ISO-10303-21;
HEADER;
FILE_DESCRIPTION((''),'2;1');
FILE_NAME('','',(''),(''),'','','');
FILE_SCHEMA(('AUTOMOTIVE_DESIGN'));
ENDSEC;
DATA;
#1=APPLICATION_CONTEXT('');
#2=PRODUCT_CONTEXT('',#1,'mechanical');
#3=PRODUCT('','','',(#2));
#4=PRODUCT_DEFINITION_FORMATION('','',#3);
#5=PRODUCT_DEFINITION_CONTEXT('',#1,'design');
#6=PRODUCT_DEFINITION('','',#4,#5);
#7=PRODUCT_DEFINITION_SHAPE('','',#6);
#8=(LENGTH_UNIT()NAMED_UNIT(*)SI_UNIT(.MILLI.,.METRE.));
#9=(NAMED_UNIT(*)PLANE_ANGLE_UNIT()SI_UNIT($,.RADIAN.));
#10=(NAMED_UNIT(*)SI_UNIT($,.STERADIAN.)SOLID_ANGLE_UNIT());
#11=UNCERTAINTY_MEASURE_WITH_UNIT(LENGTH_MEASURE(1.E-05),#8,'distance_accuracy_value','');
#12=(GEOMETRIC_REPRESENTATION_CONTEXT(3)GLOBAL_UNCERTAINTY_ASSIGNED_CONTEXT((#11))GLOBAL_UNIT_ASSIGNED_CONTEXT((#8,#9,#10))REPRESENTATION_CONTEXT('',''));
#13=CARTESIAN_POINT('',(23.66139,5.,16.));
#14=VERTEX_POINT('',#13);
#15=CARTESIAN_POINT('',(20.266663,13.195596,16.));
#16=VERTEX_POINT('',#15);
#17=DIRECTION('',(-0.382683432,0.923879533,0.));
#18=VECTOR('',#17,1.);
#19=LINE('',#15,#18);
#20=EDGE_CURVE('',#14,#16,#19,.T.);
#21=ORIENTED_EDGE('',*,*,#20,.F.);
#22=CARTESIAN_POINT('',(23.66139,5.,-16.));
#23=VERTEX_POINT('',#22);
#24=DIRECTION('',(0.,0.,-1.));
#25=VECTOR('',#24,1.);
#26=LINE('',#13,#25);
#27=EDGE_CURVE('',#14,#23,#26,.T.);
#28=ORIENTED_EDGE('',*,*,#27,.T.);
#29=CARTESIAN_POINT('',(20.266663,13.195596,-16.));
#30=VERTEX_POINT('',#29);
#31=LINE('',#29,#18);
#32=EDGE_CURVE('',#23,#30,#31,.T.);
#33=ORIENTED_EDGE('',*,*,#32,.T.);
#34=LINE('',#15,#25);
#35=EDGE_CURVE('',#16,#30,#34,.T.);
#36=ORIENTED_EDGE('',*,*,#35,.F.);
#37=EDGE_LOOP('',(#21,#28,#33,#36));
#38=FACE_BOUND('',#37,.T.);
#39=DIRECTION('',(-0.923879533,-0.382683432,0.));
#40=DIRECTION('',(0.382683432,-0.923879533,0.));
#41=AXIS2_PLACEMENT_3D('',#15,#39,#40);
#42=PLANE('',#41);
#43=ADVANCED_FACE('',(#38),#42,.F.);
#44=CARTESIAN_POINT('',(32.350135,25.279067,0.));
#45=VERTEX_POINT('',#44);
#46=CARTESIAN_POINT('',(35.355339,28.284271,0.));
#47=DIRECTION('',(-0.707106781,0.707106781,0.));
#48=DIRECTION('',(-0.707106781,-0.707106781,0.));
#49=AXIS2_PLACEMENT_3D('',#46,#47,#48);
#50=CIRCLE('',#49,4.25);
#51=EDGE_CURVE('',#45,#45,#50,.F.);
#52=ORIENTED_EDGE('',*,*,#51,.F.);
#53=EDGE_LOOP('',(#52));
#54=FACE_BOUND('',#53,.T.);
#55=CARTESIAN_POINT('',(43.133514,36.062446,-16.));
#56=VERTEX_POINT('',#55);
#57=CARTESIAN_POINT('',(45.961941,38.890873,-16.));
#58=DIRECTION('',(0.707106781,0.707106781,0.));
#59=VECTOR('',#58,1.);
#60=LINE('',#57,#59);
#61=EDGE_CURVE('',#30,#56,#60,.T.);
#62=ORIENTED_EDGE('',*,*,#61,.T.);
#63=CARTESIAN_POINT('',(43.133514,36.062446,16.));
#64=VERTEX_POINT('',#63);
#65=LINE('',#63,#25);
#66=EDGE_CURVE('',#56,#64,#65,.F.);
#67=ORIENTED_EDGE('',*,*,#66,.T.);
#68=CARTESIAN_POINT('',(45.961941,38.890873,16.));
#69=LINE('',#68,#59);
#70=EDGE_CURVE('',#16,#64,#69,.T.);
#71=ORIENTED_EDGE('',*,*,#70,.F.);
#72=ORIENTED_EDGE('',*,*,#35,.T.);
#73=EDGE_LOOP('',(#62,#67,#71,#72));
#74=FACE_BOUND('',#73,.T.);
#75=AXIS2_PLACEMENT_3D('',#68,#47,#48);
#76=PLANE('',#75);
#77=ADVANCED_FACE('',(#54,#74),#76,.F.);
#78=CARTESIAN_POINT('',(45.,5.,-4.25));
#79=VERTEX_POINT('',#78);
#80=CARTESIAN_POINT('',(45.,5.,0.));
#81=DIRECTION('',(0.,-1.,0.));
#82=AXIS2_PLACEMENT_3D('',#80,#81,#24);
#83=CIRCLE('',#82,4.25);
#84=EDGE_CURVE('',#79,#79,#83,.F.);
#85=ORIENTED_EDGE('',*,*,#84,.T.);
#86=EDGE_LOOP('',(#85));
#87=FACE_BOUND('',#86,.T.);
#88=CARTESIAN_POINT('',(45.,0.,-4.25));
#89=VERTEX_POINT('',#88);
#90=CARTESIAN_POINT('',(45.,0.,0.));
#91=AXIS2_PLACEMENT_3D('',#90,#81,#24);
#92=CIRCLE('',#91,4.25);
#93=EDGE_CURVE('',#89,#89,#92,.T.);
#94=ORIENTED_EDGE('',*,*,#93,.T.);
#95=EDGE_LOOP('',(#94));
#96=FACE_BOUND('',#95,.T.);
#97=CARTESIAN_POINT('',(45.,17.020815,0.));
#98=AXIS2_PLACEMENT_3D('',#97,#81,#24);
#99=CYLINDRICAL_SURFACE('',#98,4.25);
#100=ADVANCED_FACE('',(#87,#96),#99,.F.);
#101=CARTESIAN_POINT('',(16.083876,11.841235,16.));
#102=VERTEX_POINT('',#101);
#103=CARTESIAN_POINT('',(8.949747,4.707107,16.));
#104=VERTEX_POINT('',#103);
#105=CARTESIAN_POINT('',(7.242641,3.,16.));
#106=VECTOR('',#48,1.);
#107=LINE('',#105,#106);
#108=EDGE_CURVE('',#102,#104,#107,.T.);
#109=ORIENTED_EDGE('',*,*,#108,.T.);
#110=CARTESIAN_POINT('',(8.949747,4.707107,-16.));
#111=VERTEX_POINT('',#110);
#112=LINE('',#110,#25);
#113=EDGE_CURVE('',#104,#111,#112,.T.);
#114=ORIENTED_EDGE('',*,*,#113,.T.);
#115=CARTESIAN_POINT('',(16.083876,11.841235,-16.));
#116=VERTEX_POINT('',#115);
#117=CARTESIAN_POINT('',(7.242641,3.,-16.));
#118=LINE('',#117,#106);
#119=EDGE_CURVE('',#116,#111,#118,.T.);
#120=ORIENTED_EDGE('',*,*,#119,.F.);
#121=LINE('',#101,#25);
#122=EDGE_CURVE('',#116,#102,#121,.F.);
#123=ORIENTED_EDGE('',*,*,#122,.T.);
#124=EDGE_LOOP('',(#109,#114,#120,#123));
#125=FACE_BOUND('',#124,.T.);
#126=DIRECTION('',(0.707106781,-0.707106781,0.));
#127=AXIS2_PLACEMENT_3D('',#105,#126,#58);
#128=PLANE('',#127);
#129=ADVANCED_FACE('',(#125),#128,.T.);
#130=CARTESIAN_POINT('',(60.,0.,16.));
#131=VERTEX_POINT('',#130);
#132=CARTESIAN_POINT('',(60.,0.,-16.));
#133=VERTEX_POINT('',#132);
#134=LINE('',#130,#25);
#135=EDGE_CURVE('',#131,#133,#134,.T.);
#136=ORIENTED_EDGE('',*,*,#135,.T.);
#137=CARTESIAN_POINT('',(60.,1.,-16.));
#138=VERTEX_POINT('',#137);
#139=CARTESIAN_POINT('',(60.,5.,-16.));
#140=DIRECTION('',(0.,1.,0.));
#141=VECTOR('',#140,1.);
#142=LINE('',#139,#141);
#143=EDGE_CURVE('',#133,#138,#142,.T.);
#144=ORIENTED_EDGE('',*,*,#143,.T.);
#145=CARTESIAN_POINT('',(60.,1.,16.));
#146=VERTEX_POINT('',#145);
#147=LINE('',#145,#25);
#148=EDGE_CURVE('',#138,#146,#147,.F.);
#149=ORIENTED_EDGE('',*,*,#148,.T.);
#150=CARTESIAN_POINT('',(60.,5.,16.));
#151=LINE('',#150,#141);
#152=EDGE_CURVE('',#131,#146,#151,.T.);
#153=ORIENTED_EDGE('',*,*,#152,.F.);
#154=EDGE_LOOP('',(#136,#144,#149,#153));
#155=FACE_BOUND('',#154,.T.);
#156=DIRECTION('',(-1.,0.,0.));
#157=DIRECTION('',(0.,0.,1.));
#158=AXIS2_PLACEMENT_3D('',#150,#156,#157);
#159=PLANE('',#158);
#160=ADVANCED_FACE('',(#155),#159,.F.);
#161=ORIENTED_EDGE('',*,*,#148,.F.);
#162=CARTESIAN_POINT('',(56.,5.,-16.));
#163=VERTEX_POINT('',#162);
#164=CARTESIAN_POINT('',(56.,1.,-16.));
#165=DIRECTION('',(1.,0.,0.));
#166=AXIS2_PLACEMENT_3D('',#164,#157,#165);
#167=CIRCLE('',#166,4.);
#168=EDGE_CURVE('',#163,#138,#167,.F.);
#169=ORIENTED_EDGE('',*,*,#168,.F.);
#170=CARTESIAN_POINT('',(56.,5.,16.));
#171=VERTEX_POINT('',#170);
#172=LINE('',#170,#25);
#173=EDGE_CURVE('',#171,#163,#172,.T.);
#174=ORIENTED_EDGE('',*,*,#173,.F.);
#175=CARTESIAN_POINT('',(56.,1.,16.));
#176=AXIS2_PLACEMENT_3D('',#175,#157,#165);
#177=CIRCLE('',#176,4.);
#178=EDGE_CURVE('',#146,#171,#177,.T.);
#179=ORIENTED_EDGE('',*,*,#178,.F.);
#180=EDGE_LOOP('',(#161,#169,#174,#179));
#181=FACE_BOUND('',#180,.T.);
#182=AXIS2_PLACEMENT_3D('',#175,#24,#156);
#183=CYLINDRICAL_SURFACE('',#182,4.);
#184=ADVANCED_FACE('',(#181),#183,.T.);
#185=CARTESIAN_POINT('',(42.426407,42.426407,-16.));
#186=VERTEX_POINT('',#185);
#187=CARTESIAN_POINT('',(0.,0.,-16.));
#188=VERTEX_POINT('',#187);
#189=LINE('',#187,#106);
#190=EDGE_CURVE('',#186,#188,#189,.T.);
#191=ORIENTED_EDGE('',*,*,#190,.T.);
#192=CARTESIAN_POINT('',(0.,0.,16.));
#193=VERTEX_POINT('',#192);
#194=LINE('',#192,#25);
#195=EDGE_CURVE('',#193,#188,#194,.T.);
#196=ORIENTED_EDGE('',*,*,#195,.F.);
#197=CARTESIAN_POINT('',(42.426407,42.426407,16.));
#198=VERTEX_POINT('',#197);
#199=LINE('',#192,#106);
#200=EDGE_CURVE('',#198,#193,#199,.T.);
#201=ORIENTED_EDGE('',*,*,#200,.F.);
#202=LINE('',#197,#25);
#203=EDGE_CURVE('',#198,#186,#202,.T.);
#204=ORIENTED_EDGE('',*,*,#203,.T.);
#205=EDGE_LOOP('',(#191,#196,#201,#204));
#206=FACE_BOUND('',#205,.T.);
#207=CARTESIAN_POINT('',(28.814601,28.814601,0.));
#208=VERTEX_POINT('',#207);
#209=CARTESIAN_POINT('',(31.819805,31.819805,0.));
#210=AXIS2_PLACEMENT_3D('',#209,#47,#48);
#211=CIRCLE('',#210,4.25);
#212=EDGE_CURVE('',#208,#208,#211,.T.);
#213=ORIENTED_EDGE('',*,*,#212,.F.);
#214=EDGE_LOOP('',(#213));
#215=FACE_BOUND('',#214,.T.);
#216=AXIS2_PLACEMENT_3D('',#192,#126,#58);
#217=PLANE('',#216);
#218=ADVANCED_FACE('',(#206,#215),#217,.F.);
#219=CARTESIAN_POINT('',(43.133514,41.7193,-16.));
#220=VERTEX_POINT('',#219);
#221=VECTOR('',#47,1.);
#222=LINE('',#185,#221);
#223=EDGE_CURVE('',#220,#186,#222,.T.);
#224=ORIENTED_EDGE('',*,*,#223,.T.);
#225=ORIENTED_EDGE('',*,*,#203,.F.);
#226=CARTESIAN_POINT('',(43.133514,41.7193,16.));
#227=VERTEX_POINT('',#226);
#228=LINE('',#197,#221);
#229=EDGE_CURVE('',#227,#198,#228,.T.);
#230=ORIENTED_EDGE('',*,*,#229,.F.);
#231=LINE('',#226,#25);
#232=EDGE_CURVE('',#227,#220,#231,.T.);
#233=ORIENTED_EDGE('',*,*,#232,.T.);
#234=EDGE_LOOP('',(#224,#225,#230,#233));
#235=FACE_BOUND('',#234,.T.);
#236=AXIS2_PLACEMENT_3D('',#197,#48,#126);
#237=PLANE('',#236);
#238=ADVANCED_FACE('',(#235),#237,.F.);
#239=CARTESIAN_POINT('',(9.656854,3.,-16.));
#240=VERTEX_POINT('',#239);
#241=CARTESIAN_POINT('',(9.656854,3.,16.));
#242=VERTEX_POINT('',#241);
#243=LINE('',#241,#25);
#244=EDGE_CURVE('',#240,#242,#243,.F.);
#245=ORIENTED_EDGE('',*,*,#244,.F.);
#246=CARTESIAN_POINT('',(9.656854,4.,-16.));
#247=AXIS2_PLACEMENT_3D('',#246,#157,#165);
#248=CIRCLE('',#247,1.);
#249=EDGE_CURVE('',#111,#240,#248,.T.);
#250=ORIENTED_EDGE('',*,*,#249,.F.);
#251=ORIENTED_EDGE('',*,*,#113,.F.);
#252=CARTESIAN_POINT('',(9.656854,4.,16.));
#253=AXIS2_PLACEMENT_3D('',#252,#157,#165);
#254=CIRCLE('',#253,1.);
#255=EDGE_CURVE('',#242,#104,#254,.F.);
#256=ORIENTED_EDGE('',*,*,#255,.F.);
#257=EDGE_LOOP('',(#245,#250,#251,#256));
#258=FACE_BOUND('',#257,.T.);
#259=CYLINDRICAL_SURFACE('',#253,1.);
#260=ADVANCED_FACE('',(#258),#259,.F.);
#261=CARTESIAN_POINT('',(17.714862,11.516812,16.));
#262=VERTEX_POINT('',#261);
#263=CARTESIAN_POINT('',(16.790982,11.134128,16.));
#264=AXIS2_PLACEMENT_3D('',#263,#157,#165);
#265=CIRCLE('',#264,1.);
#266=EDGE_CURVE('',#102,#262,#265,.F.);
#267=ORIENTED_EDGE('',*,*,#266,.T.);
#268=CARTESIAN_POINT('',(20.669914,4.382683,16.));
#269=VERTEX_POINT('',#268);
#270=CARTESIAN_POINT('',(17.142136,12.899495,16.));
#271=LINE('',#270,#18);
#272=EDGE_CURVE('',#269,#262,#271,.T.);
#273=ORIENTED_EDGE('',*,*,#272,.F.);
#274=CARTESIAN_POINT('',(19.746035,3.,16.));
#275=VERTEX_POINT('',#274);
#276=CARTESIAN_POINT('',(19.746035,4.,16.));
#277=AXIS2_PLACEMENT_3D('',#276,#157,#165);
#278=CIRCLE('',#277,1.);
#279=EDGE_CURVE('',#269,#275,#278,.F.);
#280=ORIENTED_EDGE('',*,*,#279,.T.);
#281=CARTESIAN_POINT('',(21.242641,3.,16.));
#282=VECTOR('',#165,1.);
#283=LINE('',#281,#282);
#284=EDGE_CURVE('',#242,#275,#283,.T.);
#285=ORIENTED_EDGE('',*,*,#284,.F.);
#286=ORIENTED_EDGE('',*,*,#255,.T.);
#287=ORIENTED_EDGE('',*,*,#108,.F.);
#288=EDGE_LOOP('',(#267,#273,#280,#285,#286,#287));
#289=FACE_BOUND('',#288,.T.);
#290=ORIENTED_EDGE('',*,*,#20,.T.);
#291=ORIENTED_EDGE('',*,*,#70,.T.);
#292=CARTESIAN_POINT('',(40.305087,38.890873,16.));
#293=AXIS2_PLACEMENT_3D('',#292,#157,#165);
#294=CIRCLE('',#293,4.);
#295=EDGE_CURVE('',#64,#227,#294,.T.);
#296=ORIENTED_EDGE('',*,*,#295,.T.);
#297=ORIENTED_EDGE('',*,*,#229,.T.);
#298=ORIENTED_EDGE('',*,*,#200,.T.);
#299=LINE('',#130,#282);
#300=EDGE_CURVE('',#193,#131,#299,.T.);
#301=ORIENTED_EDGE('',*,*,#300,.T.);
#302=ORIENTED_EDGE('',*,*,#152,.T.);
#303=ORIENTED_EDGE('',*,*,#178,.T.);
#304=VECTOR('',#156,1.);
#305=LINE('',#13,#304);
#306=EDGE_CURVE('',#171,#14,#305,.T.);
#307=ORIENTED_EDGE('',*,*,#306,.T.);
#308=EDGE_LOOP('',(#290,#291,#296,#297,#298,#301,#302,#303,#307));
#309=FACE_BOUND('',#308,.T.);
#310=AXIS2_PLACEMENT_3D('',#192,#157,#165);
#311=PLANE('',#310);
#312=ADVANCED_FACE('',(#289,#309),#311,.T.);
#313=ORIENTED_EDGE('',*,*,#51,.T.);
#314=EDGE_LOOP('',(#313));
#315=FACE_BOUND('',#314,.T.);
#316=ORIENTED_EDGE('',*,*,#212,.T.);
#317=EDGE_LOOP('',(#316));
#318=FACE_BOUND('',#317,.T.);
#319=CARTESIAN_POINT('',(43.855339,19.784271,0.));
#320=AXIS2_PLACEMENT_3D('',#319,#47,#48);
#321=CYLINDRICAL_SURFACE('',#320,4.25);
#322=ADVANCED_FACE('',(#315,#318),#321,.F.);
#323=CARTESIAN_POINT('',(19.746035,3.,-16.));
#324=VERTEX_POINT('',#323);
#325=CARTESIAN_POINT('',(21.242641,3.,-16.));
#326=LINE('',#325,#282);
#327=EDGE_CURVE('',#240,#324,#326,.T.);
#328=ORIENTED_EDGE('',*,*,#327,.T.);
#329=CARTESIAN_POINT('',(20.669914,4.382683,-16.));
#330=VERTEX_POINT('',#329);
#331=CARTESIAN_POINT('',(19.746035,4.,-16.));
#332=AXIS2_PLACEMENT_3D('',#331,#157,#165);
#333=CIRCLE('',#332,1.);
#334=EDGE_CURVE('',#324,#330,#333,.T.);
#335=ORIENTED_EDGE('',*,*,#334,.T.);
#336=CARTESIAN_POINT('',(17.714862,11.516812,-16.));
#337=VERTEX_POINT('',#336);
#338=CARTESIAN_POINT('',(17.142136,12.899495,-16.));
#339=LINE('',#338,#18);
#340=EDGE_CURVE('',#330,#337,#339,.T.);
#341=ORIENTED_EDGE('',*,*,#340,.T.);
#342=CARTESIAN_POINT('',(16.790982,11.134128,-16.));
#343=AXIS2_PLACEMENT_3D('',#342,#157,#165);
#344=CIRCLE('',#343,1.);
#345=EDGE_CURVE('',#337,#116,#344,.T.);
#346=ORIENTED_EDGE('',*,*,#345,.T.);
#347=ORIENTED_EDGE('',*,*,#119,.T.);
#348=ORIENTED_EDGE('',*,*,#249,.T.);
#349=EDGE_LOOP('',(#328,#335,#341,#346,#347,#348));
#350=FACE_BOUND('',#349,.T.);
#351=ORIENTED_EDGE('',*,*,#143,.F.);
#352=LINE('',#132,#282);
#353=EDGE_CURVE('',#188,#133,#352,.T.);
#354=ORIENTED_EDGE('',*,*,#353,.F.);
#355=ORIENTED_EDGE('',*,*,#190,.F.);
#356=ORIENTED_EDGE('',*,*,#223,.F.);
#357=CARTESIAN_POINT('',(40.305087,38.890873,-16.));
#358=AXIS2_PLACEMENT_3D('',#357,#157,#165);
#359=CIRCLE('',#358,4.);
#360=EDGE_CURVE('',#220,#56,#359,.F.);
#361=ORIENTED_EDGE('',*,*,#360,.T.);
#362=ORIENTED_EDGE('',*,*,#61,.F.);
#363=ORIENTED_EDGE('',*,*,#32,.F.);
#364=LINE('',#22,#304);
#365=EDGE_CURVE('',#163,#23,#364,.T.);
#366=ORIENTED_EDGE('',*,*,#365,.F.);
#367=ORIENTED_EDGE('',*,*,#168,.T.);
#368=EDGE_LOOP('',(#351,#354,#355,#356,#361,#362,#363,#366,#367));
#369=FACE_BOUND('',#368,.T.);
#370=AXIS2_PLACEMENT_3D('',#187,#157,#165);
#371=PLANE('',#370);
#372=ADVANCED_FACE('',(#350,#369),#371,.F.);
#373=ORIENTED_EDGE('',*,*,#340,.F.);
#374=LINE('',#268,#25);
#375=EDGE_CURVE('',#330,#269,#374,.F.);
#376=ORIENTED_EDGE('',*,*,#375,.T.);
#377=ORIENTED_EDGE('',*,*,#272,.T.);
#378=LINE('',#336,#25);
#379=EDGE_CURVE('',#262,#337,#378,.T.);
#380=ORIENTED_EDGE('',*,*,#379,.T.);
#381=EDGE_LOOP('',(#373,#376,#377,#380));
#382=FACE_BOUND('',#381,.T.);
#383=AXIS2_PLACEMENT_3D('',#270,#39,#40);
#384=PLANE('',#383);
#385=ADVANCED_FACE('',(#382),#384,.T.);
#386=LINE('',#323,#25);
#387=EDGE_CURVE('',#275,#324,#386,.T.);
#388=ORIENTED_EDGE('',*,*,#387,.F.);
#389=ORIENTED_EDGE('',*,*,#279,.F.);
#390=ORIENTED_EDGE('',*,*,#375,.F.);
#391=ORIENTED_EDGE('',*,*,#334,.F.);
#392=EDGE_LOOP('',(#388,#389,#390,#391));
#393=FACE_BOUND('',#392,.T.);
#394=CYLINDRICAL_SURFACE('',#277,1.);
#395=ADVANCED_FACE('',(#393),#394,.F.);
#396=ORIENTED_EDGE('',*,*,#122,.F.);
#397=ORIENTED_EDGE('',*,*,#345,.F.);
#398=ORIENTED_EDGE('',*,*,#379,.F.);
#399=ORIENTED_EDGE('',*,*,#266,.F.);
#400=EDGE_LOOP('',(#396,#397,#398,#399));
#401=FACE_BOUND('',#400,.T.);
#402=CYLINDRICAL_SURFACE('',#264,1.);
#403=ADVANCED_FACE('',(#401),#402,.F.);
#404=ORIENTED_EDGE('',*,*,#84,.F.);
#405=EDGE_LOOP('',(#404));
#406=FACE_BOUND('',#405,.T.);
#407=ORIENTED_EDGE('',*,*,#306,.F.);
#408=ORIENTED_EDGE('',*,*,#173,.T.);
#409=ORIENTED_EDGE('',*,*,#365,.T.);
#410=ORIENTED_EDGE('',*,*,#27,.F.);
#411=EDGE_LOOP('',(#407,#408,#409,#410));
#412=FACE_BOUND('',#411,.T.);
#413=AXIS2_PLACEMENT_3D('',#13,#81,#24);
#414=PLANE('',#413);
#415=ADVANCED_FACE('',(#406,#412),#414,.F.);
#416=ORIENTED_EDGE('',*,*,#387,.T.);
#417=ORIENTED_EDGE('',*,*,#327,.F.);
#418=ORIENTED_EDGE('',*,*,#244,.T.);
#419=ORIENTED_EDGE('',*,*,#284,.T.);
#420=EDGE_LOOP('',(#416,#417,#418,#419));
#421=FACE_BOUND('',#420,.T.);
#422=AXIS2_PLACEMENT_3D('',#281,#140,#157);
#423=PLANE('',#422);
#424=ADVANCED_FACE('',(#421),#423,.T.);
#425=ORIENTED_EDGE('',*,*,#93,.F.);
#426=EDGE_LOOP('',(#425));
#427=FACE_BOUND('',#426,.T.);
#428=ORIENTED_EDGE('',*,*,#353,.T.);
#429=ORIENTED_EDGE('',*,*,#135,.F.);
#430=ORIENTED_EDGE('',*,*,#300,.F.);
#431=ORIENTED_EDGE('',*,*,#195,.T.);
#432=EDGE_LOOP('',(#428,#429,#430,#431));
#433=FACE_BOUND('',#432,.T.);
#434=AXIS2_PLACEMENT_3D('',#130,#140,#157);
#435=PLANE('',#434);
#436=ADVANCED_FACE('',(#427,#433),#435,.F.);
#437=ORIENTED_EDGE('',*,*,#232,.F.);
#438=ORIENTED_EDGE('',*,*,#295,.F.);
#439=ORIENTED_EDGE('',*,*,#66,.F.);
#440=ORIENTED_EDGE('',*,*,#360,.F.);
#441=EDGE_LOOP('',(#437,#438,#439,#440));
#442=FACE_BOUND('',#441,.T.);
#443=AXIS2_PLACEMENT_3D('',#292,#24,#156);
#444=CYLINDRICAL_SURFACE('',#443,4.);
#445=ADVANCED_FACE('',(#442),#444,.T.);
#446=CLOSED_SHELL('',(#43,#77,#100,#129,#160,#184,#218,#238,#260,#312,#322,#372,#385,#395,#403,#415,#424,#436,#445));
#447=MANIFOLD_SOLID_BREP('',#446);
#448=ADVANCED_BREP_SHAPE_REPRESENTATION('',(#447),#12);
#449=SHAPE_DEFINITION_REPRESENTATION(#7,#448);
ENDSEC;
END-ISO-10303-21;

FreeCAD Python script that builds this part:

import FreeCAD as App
import Part
import Sketcher
from FreeCAD import Vector
Q = App.Units.Quantity


def edges_at(feature, points):
    """Names of the edges that pass closest to the given points."""
    edges = feature.Shape.Edges
    near = lambda p: min(range(len(edges)), key=lambda i: edges[i].distToShape(Part.Vertex(*p))[0])
    return sorted({f"Edge{near(p) + 1}" for p in points})


def add_polygon(sketch, points):
    """Adds a closed chain of lines whose ends are joined by coincident constraints."""
    first, n = sketch.GeometryCount, len(points)
    for a, b in zip(points, points[1:] + points[:1]):
        sketch.addGeometry(Part.LineSegment(App.Vector(*a, 0), App.Vector(*b, 0)), False)
    for i in range(n):
        sketch.addConstraint(Sketcher.Constraint("Coincident", first + i, 2, first + (i + 1) % n, 1))

doc = App.newDocument("Part")
body = doc.addObject("PartDesign::Body", "Body")

# Sketch on XY plane
sketch1 = doc.addObject("Sketcher::SketchObject", "Sketch")
body.addObject(sketch1)
sketch1.AttachmentSupport = (doc.XY_Plane, [""])
sketch1.MapMode = "FlatFace"
add_polygon(sketch1, [(42, 42), (0, 0), (60, 0), (60, 5), (24, 5), (20, 13), (46, 39)])  # lines 0-6
add_polygon(sketch1, [(17, 13), (21, 3), (7, 3)])  # lines 7-9
sketch1.addConstraint([
    Sketcher.Constraint("Horizontal", 1),
    Sketcher.Constraint("Vertical", 2),
    Sketcher.Constraint("Horizontal", 3),
    Sketcher.Constraint("Horizontal", 8),
    Sketcher.Constraint("Coincident", 0, 2, -1, 1),
    Sketcher.Constraint("Parallel", 0, 5),
    Sketcher.Constraint("Perpendicular", 5, 6),
    Sketcher.Constraint("Parallel", 4, 7),
    Sketcher.Constraint("Perpendicular", 6, 9),
    Sketcher.Constraint("DistanceX", 1, 1, 1, 2, Q("60 mm")),
    Sketcher.Constraint("DistanceX", 8, 2, 8, 1, Q("14 mm")),
    Sketcher.Constraint("DistanceY", 2, 1, 2, 2, Q("5 mm")),
    Sketcher.Constraint("Angle", 0, Q("-135 deg")),
    Sketcher.Constraint("Distance", 0, Q("60 mm")),
    Sketcher.Constraint("Distance", 6, Q("5 mm")),
    Sketcher.Constraint("Distance", 9, Q("14 mm")),
    Sketcher.Constraint("DistanceY", -1, 1, 7, 2, Q("3 mm")),
    Sketcher.Constraint("DistanceX", 3, 2, 3, 1, Q("36.33861 mm")),
    Sketcher.Constraint("DistanceX", 8, 2, 5, 2, Q("38.7193 mm")),
])
pad1 = doc.addObject("PartDesign::Pad", "Pad")
body.addObject(pad1)
pad1.Profile = sketch1
pad1.Length = 32
pad1.Midplane = True

# Sketch on an angled plane
sketch2 = doc.addObject("Sketcher::SketchObject", "Sketch001")
body.addObject(sketch2)
sketch2.Placement = App.Placement(Vector(0, 0, 0), App.Rotation(Vector(0, 0, 1), Vector(0.707106781, 0.707106781, 0), Vector(-0.707106781, 0.707106781, 0), "ZXY"))
sketch2.addGeometry(Part.Circle(Vector(0, 45, 0), Vector(0, 0, 1), 4.2), False)
sketch2.addConstraint([
    Sketcher.Constraint("PointOnObject", 0, 3, -2),
    Sketcher.Constraint("Diameter", 0, Q("8.5 mm")),
    Sketcher.Constraint("DistanceY", -1, 1, 0, 3, Q("45 mm")),
])
pocket1 = doc.addObject("PartDesign::Pocket", "Pocket")
body.addObject(pocket1)
pocket1.Profile = sketch2
pocket1.Length = 5

# Sketch on XZ plane
sketch3 = doc.addObject("Sketcher::SketchObject", "Sketch002")
body.addObject(sketch3)
sketch3.AttachmentSupport = (doc.XZ_Plane, [""])
sketch3.MapMode = "FlatFace"
sketch3.addGeometry(Part.Circle(Vector(45, 0, 0), Vector(0, 0, 1), 4.2), False)
sketch3.addConstraint([
    Sketcher.Constraint("PointOnObject", 0, 3, -1),
    Sketcher.Constraint("Diameter", 0, Q("8.5 mm")),
    Sketcher.Constraint("DistanceX", -1, 1, 0, 3, Q("45 mm")),
])
pocket2 = doc.addObject("PartDesign::Pocket", "Pocket001")
body.addObject(pocket2)
pocket2.Profile = sketch3
pocket2.Length = 5
doc.recompute()

fillet = doc.addObject("PartDesign::Fillet", "Fillet")
body.addObject(fillet)
fillet.Base = (pocket2, edges_at(pocket2, [(45.962, 38.891, 0), (60, 5, 0)]))
fillet.Radius = 4
doc.recompute()

fillet2 = doc.addObject("PartDesign::Fillet", "Fillet001")
body.addObject(fillet2)
fillet2.Base = (fillet, edges_at(fillet, [(17.142, 12.899, 0), (7.243, 3, 0), (21.243, 3, 0)]))
fillet2.Radius = 1

doc.recompute()
